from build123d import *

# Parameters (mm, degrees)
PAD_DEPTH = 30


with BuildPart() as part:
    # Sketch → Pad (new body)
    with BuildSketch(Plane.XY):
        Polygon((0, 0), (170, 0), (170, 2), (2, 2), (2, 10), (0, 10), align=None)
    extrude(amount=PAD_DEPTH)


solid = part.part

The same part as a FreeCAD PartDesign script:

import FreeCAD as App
import Part
import Sketcher

V = App.Vector
Q = App.Units.Quantity

doc = App.newDocument("Part")
body = doc.addObject("PartDesign::Body", "Body")

# Sketch on XY plane
sketch1 = doc.addObject("Sketcher::SketchObject", "Sketch")
body.addObject(sketch1)
sketch1.AttachmentSupport = (doc.XY_Plane, [""])
sketch1.MapMode = "FlatFace"
sketch1.addGeometry(Part.LineSegment(V(0, 0, 0), V(170, 0, 0)), False)
sketch1.addGeometry(Part.LineSegment(V(170, 0, 0), V(170, 2, 0)), False)
sketch1.addGeometry(Part.LineSegment(V(170, 2, 0), V(2, 2, 0)), False)
sketch1.addGeometry(Part.LineSegment(V(2, 2, 0), V(2, 10, 0)), False)
sketch1.addGeometry(Part.LineSegment(V(2, 10, 0), V(0, 10, 0)), False)
sketch1.addGeometry(Part.LineSegment(V(0, 10, 0), V(0, 0, 0)), False)
sketch1.addConstraint(Sketcher.Constraint("Coincident", 0, 2, 1, 1))
sketch1.addConstraint(Sketcher.Constraint("Coincident", 1, 2, 2, 1))
sketch1.addConstraint(Sketcher.Constraint("Coincident", 2, 2, 3, 1))
sketch1.addConstraint(Sketcher.Constraint("Coincident", 3, 2, 4, 1))
sketch1.addConstraint(Sketcher.Constraint("Coincident", 4, 2, 5, 1))
sketch1.addConstraint(Sketcher.Constraint("Coincident", 5, 2, 0, 1))
sketch1.addConstraint(Sketcher.Constraint("Horizontal", 0))
sketch1.addConstraint(Sketcher.Constraint("Vertical", 1))
sketch1.addConstraint(Sketcher.Constraint("Horizontal", 2))
sketch1.addConstraint(Sketcher.Constraint("Vertical", 3))
sketch1.addConstraint(Sketcher.Constraint("Horizontal", 4))
sketch1.addConstraint(Sketcher.Constraint("Vertical", 5))
sketch1.addConstraint(Sketcher.Constraint("Coincident", 5, 2, -1, 1))
sketch1.addConstraint(Sketcher.Constraint("Equal", 4, 1))
sketch1.addConstraint(Sketcher.Constraint("DistanceX", 0, 1, 0, 2, Q("170 mm")))
sketch1.addConstraint(Sketcher.Constraint("DistanceX", 2, 2, 2, 1, Q("168 mm")))
sketch1.addConstraint(Sketcher.Constraint("DistanceY", 3, 1, 3, 2, Q("8 mm")))
pad1 = doc.addObject("PartDesign::Pad", "Pad")
body.addObject(pad1)
pad1.Profile = sketch1
pad1.Length = 30

doc.recompute()
